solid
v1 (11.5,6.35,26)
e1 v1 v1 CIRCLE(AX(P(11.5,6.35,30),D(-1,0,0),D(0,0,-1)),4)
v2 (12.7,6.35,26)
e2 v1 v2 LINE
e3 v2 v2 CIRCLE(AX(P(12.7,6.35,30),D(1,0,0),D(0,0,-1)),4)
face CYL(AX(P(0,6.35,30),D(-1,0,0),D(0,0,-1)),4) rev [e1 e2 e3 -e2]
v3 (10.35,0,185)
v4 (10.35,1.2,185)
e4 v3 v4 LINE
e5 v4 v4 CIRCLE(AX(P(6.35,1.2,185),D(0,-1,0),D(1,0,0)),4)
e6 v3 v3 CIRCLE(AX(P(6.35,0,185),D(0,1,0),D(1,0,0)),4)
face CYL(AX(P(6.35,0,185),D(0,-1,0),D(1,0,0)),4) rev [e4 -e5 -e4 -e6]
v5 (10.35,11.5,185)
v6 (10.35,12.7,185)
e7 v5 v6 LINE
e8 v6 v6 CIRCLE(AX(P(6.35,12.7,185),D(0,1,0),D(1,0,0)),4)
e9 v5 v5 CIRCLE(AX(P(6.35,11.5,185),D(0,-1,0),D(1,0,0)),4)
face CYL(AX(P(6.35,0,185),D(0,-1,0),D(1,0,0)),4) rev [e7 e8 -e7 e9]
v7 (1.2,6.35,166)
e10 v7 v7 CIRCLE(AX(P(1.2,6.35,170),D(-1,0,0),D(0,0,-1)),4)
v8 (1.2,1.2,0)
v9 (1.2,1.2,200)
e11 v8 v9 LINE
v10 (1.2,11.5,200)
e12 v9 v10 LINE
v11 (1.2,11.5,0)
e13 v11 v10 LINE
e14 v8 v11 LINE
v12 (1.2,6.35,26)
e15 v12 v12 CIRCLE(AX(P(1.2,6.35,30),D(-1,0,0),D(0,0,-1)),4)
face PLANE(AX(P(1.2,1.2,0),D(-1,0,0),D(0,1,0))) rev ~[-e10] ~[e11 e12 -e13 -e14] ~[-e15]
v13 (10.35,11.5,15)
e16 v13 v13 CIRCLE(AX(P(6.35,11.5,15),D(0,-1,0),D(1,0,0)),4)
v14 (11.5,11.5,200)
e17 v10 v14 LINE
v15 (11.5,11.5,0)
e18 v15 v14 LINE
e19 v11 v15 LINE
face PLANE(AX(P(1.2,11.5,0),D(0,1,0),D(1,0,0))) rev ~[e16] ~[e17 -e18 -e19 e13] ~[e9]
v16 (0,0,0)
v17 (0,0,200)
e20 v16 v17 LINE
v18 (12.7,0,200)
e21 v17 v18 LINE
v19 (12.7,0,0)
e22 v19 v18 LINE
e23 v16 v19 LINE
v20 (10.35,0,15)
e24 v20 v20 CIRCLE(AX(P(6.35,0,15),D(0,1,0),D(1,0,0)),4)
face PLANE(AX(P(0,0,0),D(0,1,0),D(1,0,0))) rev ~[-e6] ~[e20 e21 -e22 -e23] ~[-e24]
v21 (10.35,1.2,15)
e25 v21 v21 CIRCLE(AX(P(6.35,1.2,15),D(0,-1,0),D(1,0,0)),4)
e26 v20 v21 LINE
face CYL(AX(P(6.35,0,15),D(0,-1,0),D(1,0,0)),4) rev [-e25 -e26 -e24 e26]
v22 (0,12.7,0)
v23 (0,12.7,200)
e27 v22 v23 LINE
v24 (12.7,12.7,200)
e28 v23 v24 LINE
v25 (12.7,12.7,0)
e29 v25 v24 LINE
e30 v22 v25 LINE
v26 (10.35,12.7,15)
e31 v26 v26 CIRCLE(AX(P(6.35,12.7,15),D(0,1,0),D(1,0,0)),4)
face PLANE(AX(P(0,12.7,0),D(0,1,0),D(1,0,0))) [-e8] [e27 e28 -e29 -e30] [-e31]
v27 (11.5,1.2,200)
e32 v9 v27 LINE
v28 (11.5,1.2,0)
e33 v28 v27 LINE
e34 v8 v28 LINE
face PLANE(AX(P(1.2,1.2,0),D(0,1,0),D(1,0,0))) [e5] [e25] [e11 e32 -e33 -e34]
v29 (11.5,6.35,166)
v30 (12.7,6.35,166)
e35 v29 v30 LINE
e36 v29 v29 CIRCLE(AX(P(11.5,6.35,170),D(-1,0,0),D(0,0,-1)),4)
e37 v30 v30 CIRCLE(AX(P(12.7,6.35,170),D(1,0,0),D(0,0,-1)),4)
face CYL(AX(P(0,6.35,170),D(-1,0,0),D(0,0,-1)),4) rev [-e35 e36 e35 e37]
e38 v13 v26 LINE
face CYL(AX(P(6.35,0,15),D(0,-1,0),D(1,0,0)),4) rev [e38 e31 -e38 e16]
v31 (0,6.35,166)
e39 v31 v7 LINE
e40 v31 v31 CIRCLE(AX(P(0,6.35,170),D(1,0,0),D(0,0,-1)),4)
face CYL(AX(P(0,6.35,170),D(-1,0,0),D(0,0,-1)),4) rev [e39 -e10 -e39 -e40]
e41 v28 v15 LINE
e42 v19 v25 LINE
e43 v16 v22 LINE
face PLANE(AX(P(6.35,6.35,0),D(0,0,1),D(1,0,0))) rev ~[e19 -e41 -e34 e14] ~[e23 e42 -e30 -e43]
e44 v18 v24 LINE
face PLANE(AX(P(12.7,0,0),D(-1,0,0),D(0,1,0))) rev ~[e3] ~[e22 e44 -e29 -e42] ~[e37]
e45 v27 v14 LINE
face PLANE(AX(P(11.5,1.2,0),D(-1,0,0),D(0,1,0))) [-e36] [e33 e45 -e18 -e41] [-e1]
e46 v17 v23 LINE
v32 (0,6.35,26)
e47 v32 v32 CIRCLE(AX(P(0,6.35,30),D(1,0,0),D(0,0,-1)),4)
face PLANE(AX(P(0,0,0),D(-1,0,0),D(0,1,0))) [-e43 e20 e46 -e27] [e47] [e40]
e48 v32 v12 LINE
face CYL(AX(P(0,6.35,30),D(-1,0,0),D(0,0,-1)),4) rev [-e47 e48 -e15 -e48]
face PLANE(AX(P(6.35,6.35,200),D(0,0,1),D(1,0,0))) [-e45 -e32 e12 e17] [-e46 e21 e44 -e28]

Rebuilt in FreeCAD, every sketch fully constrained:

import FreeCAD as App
import Part
import Sketcher

V = App.Vector
Q = App.Units.Quantity


def add_polygon(sketch, points):
    """Adds a closed chain of lines whose ends are joined by coincident constraints."""
    first, n = sketch.GeometryCount, len(points)
    for a, b in zip(points, points[1:] + points[:1]):
        sketch.addGeometry(Part.LineSegment(App.Vector(*a, 0), App.Vector(*b, 0)), False)
    for i in range(n):
        sketch.addConstraint(Sketcher.Constraint("Coincident", first + i, 2, first + (i + 1) % n, 1))

doc = App.newDocument("Part")
params = doc.addObject("Spreadsheet::Sheet", "Params")
for row, (alias, value) in enumerate([
    ("sketch1_diameter", "8 mm"),
    ("pad1_length", "12.7 mm"),
    ("sketch2_diameter", "8 mm"),
    ("pad2_length", "12.7 mm"),
    ("sketch3_diameter", "8 mm"),
    ("pad3_length", "12.7 mm"),
    ("sketch4_diameter", "8 mm"),
    ("pad4_length", "12.7 mm"),
    ("sketch5_width", "10.3 mm"),
    ("pad5_length", "200 mm"),
    ("sketch6_width", "12.7 mm"),
    ("pad6_length", "200 mm"),
], start=1):
    params.set(f"A{row}", alias)
    params.set(f"B{row}", "=" + value)
    params.setAlias(f"B{row}", alias)

body = doc.addObject("PartDesign::Body", "Body")

# Sketch on YZ plane
sketch1 = body.newObject("Sketcher::SketchObject", "Sketch")
sketch1.AttachmentSupport = (doc.getObject("YZ_Plane"), [""])
sketch1.MapMode = "FlatFace"
sketch1.addGeometry(Part.Circle(V(6.3, 170, 0), V(0, 0, 1), 4), False)
sketch1.addConstraint([
    Sketcher.Constraint("Diameter", 0, Q("8 mm")),
    Sketcher.Constraint("DistanceY", -1, 1, 0, 3, Q("170 mm")),
    Sketcher.Constraint("DistanceX", -1, 1, 0, 3, Q("6.35 mm")),
])
sketch1.setExpression("Constraints[0]", "Params.sketch1_diameter")
pad1 = body.newObject("PartDesign::Pad", "Pad")
pad1.Profile = sketch1
pad1.setExpression("Length", "Params.pad1_length")
body2 = doc.addObject("PartDesign::Body", "Body001")

# Sketch on YZ plane
sketch2 = body2.newObject("Sketcher::SketchObject", "Sketch001")
sketch2.AttachmentSupport = (doc.getObject("YZ_Plane001"), [""])
sketch2.MapMode = "FlatFace"
sketch2.addGeometry(Part.Circle(V(6.3, 30, 0), V(0, 0, 1), 4), False)
sketch2.addConstraint([
    Sketcher.Constraint("Diameter", 0, Q("8 mm")),
    Sketcher.Constraint("DistanceY", -1, 1, 0, 3, Q("30 mm")),
    Sketcher.Constraint("DistanceX", -1, 1, 0, 3, Q("6.35 mm")),
])
sketch2.setExpression("Constraints[0]", "Params.sketch2_diameter")
pad2 = body2.newObject("PartDesign::Pad", "Pad001")
pad2.Profile = sketch2
pad2.setExpression("Length", "Params.pad2_length")
body3 = doc.addObject("PartDesign::Body", "Body002")

# Sketch on XZ plane
sketch3 = body3.newObject("Sketcher::SketchObject", "Sketch002")
sketch3.AttachmentSupport = (doc.getObject("XZ_Plane002"), [""])
sketch3.MapMode = "FlatFace"
sketch3.addGeometry(Part.Circle(V(6.3, 15, 0), V(0, 0, 1), 4), False)
sketch3.addConstraint([
    Sketcher.Constraint("Diameter", 0, Q("8 mm")),
    Sketcher.Constraint("DistanceY", -1, 1, 0, 3, Q("15 mm")),
    Sketcher.Constraint("DistanceX", -1, 1, 0, 3, Q("6.35 mm")),
])
sketch3.setExpression("Constraints[0]", "Params.sketch3_diameter")
pad3 = body3.newObject("PartDesign::Pad", "Pad002")
pad3.Profile = sketch3
pad3.setExpression("Length", "Params.pad3_length")
pad3.Reversed = True
body4 = doc.addObject("PartDesign::Body", "Body003")

# Sketch on XZ plane
sketch4 = body4.newObject("Sketcher::SketchObject", "Sketch003")
sketch4.AttachmentSupport = (doc.getObject("XZ_Plane003"), [""])
sketch4.MapMode = "FlatFace"
sketch4.addGeometry(Part.Circle(V(6.3, 185, 0), V(0, 0, 1), 4), False)
sketch4.addConstraint([
    Sketcher.Constraint("Diameter", 0, Q("8 mm")),
    Sketcher.Constraint("DistanceY", -1, 1, 0, 3, Q("185 mm")),
    Sketcher.Constraint("DistanceX", -1, 1, 0, 3, Q("6.35 mm")),
])
sketch4.setExpression("Constraints[0]", "Params.sketch4_diameter")
pad4 = body4.newObject("PartDesign::Pad", "Pad003")
pad4.Profile = sketch4
pad4.setExpression("Length", "Params.pad4_length")
pad4.Reversed = True
body5 = doc.addObject("PartDesign::Body", "Body004")

# Sketch on XY plane
sketch5 = body5.newObject("Sketcher::SketchObject", "Sketch004")
sketch5.AttachmentSupport = (doc.getObject("XY_Plane004"), [""])
sketch5.MapMode = "FlatFace"
add_polygon(sketch5, [(1, 12), (1, 1), (12, 1), (12, 12)])  # lines 0-3
sketch5.addConstraint([
    Sketcher.Constraint("Vertical", 0),
    Sketcher.Constraint("Horizontal", 1),
    Sketcher.Constraint("Vertical", 2),
    Sketcher.Constraint("Horizontal", 3),
    Sketcher.Constraint("Equal", 3, 0),
    Sketcher.Constraint("DistanceX", 1, 1, 1, 2, Q("10.3 mm")),
    Sketcher.Constraint("DistanceX", -1, 1, 0, 2, Q("1.2 mm")),
    Sketcher.Constraint("DistanceY", -1, 1, 0, 2, Q("1.2 mm")),
])
sketch5.setExpression("Constraints[9]", "Params.sketch5_width")
pad5 = body5.newObject("PartDesign::Pad", "Pad004")
pad5.Profile = sketch5
pad5.setExpression("Length", "Params.pad5_length")
body6 = doc.addObject("PartDesign::Body", "Body005")

# Sketch on XY plane
sketch6 = body6.newObject("Sketcher::SketchObject", "Sketch005")
sketch6.AttachmentSupport = (doc.getObject("XY_Plane005"), [""])
sketch6.MapMode = "FlatFace"
add_polygon(sketch6, [(0, 13), (0, 0), (13, 0), (13, 13)])  # lines 0-3
sketch6.addConstraint([
    Sketcher.Constraint("Vertical", 0),
    Sketcher.Constraint("Horizontal", 1),
    Sketcher.Constraint("Vertical", 2),
    Sketcher.Constraint("Horizontal", 3),
    Sketcher.Constraint("Coincident", 0, 2, -1, 1),
    Sketcher.Constraint("Equal", 3, 0),
    Sketcher.Constraint("DistanceX", 1, 1, 1, 2, Q("12.7 mm")),
])
sketch6.setExpression("Constraints[10]", "Params.sketch6_width")
pad6 = body6.newObject("PartDesign::Pad", "Pad005")
pad6.Profile = sketch6
pad6.setExpression("Length", "Params.pad6_length")
doc.recompute()

boolean = body6.newObject("PartDesign::Boolean", "Boolean")
boolean.Type = "Cut"
boolean.addObjects([body5])
doc.recompute()

boolean2 = body6.newObject("PartDesign::Boolean", "Boolean001")
boolean2.Type = "Cut"
boolean2.addObjects([body4])
doc.recompute()

boolean3 = body6.newObject("PartDesign::Boolean", "Boolean002")
boolean3.Type = "Cut"
boolean3.addObjects([body3])
doc.recompute()

boolean4 = body6.newObject("PartDesign::Boolean", "Boolean003")
boolean4.Type = "Cut"
boolean4.addObjects([body2])
doc.recompute()

boolean5 = body6.newObject("PartDesign::Boolean", "Boolean004")
boolean5.Type = "Cut"
boolean5.addObjects([body])

doc.recompute()
